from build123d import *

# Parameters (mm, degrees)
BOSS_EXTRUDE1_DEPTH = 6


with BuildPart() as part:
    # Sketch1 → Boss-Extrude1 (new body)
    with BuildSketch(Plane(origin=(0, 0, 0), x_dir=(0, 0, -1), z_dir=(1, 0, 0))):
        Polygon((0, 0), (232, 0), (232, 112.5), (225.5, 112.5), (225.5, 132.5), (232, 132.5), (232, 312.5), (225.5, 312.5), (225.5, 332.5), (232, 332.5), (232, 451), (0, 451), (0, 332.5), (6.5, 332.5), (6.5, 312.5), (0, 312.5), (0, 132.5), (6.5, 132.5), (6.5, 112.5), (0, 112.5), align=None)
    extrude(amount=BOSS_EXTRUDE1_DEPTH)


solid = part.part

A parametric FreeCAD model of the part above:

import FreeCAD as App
import Part
import Sketcher
from FreeCAD import Vector
Q = App.Units.Quantity

doc = App.newDocument("Part")
body = doc.addObject("PartDesign::Body", "Body")

# Sketch on YZ plane
sketch1 = body.newObject("Sketcher::SketchObject", "Sketch")
sketch1.AttachmentSupport = (doc.getObject("YZ_Plane"), [""])
sketch1.MapMode = "FlatFace"
sketch1.addGeometry(Part.LineSegment(Vector(0, 0, 0), Vector(0, -232, 0)), False)
sketch1.addGeometry(Part.LineSegment(Vector(0, -232, 0), Vector(112, -232, 0)), False)
sketch1.addGeometry(Part.LineSegment(Vector(112, -232, 0), Vector(112, -226, 0)), False)
sketch1.addGeometry(Part.LineSegment(Vector(112, -226, 0), Vector(132, -226, 0)), False)
sketch1.addGeometry(Part.LineSegment(Vector(132, -226, 0), Vector(132, -232, 0)), False)
sketch1.addGeometry(Part.LineSegment(Vector(132, -232, 0), Vector(312, -232, 0)), False)
sketch1.addGeometry(Part.LineSegment(Vector(312, -232, 0), Vector(312, -226, 0)), False)
sketch1.addGeometry(Part.LineSegment(Vector(312, -226, 0), Vector(332, -226, 0)), False)
sketch1.addGeometry(Part.LineSegment(Vector(332, -226, 0), Vector(332, -232, 0)), False)
sketch1.addGeometry(Part.LineSegment(Vector(332, -232, 0), Vector(451, -232, 0)), False)
sketch1.addGeometry(Part.LineSegment(Vector(451, -232, 0), Vector(451, 0, 0)), False)
sketch1.addGeometry(Part.LineSegment(Vector(451, 0, 0), Vector(332, 0, 0)), False)
sketch1.addGeometry(Part.LineSegment(Vector(332, 0, 0), Vector(332, -6, 0)), False)
sketch1.addGeometry(Part.LineSegment(Vector(332, -6, 0), Vector(312, -6, 0)), False)
sketch1.addGeometry(Part.LineSegment(Vector(312, -6, 0), Vector(312, 0, 0)), False)
sketch1.addGeometry(Part.LineSegment(Vector(312, 0, 0), Vector(132, 0, 0)), False)
sketch1.addGeometry(Part.LineSegment(Vector(132, 0, 0), Vector(132, -6, 0)), False)
sketch1.addGeometry(Part.LineSegment(Vector(132, -6, 0), Vector(112, -6, 0)), False)
sketch1.addGeometry(Part.LineSegment(Vector(112, -6, 0), Vector(112, 0, 0)), False)
sketch1.addGeometry(Part.LineSegment(Vector(112, 0, 0), Vector(0, 0, 0)), False)
sketch1.addConstraint(Sketcher.Constraint("Coincident", 0, 2, 1, 1))
sketch1.addConstraint(Sketcher.Constraint("Coincident", 1, 2, 2, 1))
sketch1.addConstraint(Sketcher.Constraint("Coincident", 2, 2, 3, 1))
sketch1.addConstraint(Sketcher.Constraint("Coincident", 3, 2, 4, 1))
sketch1.addConstraint(Sketcher.Constraint("Coincident", 4, 2, 5, 1))
sketch1.addConstraint(Sketcher.Constraint("Coincident", 5, 2, 6, 1))
sketch1.addConstraint(Sketcher.Constraint("Coincident", 6, 2, 7, 1))
sketch1.addConstraint(Sketcher.Constraint("Coincident", 7, 2, 8, 1))
sketch1.addConstraint(Sketcher.Constraint("Coincident", 8, 2, 9, 1))
sketch1.addConstraint(Sketcher.Constraint("Coincident", 9, 2, 10, 1))
sketch1.addConstraint(Sketcher.Constraint("Coincident", 10, 2, 11, 1))
sketch1.addConstraint(Sketcher.Constraint("Coincident", 11, 2, 12, 1))
sketch1.addConstraint(Sketcher.Constraint("Coincident", 12, 2, 13, 1))
sketch1.addConstraint(Sketcher.Constraint("Coincident", 13, 2, 14, 1))
sketch1.addConstraint(Sketcher.Constraint("Coincident", 14, 2, 15, 1))
sketch1.addConstraint(Sketcher.Constraint("Coincident", 15, 2, 16, 1))
sketch1.addConstraint(Sketcher.Constraint("Coincident", 16, 2, 17, 1))
sketch1.addConstraint(Sketcher.Constraint("Coincident", 17, 2, 18, 1))
sketch1.addConstraint(Sketcher.Constraint("Coincident", 18, 2, 19, 1))
sketch1.addConstraint(Sketcher.Constraint("Coincident", 19, 2, 0, 1))
sketch1.addConstraint(Sketcher.Constraint("Vertical", 0))
sketch1.addConstraint(Sketcher.Constraint("Horizontal", 1))
sketch1.addConstraint(Sketcher.Constraint("Vertical", 2))
sketch1.addConstraint(Sketcher.Constraint("Horizontal", 3))
sketch1.addConstraint(Sketcher.Constraint("Vertical", 4))
sketch1.addConstraint(Sketcher.Constraint("Horizontal", 5))
sketch1.addConstraint(Sketcher.Constraint("Vertical", 6))
sketch1.addConstraint(Sketcher.Constraint("Horizontal", 7))
sketch1.addConstraint(Sketcher.Constraint("Vertical", 8))
sketch1.addConstraint(Sketcher.Constraint("Horizontal", 9))
sketch1.addConstraint(Sketcher.Constraint("Vertical", 10))
sketch1.addConstraint(Sketcher.Constraint("Horizontal", 11))
sketch1.addConstraint(Sketcher.Constraint("Vertical", 12))
sketch1.addConstraint(Sketcher.Constraint("Horizontal", 13))
sketch1.addConstraint(Sketcher.Constraint("Vertical", 14))
sketch1.addConstraint(Sketcher.Constraint("Horizontal", 15))
sketch1.addConstraint(Sketcher.Constraint("Vertical", 16))
sketch1.addConstraint(Sketcher.Constraint("Horizontal", 17))
sketch1.addConstraint(Sketcher.Constraint("Vertical", 18))
sketch1.addConstraint(Sketcher.Constraint("Horizontal", 19))
sketch1.addConstraint(Sketcher.Constraint("Coincident", 19, 2, -1, 1))
sketch1.addConstraint(Sketcher.Constraint("PointOnObject", 10, 2, -1))
sketch1.addConstraint(Sketcher.Constraint("PointOnObject", 14, 2, -1))
sketch1.addConstraint(Sketcher.Constraint("Horizontal", 1, 2, 4, 2))
sketch1.addConstraint(Sketcher.Constraint("Horizontal", 3, 2, 6, 2))
sketch1.addConstraint(Sketcher.Constraint("Horizontal", 5, 2, 8, 2))
sketch1.addConstraint(Sketcher.Constraint("Horizontal", 13, 2, 16, 2))
sketch1.addConstraint(Sketcher.Constraint("Vertical", 8, 2, 11, 2))
sketch1.addConstraint(Sketcher.Constraint("Vertical", 6, 2, 13, 2))
sketch1.addConstraint(Sketcher.Constraint("Vertical", 4, 2, 15, 2))
sketch1.addConstraint(Sketcher.Constraint("Vertical", 2, 2, 17, 2))
sketch1.addConstraint(Sketcher.Constraint("Equal", 3, 7))
sketch1.addConstraint(Sketcher.Constraint("Equal", 8, 12))
sketch1.addConstraint(Sketcher.Constraint("DistanceX", 3, 1, 3, 2, Q("20 mm")))
sketch1.addConstraint(Sketcher.Constraint("DistanceX", 5, 1, 5, 2, Q("180 mm")))
sketch1.addConstraint(Sketcher.Constraint("DistanceY", 0, 2, 0, 1, Q("232 mm")))
sketch1.addConstraint(Sketcher.Constraint("DistanceX", 1, 1, 1, 2, Q("112.5 mm")))
sketch1.addConstraint(Sketcher.Constraint("DistanceX", 9, 1, 9, 2, Q("118.5 mm")))
sketch1.addConstraint(Sketcher.Constraint("DistanceY", 2, 1, 2, 2, Q("6.5 mm")))
pad1 = body.newObject("PartDesign::Pad", "Pad")
pad1.Profile = sketch1
pad1.Length = 6

doc.recompute()
